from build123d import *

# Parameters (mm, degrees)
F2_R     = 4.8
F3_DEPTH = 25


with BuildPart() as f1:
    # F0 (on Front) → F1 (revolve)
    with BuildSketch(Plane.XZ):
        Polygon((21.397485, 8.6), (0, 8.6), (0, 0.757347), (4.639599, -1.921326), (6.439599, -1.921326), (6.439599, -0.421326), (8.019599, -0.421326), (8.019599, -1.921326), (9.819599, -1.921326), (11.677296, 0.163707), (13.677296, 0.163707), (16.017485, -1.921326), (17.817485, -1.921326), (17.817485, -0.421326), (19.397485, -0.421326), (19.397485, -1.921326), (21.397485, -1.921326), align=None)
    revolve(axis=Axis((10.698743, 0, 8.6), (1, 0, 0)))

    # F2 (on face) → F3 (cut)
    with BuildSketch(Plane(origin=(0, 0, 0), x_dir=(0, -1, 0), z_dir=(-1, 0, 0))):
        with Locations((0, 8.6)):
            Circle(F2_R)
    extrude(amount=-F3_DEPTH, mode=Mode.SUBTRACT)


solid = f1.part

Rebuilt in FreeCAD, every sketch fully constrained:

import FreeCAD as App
import Part
import Sketcher
from FreeCAD import Vector
Q = App.Units.Quantity

doc = App.newDocument("Part")
body = doc.addObject("PartDesign::Body", "Body")

# Sketch on XZ plane
sketch1 = doc.addObject("Sketcher::SketchObject", "Sketch")
body.addObject(sketch1)
sketch1.AttachmentSupport = (doc.XZ_Plane, [""])
sketch1.MapMode = "FlatFace"
sketch1.addGeometry(Part.LineSegment(Vector(21.4, 8.6, 0), Vector(0, 8.6, 0)), False)
sketch1.addGeometry(Part.LineSegment(Vector(0, 8.6, 0), Vector(0, 0.8, 0)), False)
sketch1.addGeometry(Part.LineSegment(Vector(0, 0.8, 0), Vector(4.6, -1.9, 0)), False)
sketch1.addGeometry(Part.LineSegment(Vector(4.6, -1.9, 0), Vector(6.4, -1.9, 0)), False)
sketch1.addGeometry(Part.LineSegment(Vector(6.4, -1.9, 0), Vector(6.4, -0.4, 0)), False)
sketch1.addGeometry(Part.LineSegment(Vector(6.4, -0.4, 0), Vector(8, -0.4, 0)), False)
sketch1.addGeometry(Part.LineSegment(Vector(8, -0.4, 0), Vector(8, -1.9, 0)), False)
sketch1.addGeometry(Part.LineSegment(Vector(8, -1.9, 0), Vector(9.8, -1.9, 0)), False)
sketch1.addGeometry(Part.LineSegment(Vector(9.8, -1.9, 0), Vector(11.7, 0.2, 0)), False)
sketch1.addGeometry(Part.LineSegment(Vector(11.7, 0.2, 0), Vector(13.7, 0.2, 0)), False)
sketch1.addGeometry(Part.LineSegment(Vector(13.7, 0.2, 0), Vector(16, -1.9, 0)), False)
sketch1.addGeometry(Part.LineSegment(Vector(16, -1.9, 0), Vector(17.8, -1.9, 0)), False)
sketch1.addGeometry(Part.LineSegment(Vector(17.8, -1.9, 0), Vector(17.8, -0.4, 0)), False)
sketch1.addGeometry(Part.LineSegment(Vector(17.8, -0.4, 0), Vector(19.4, -0.4, 0)), False)
sketch1.addGeometry(Part.LineSegment(Vector(19.4, -0.4, 0), Vector(19.4, -1.9, 0)), False)
sketch1.addGeometry(Part.LineSegment(Vector(19.4, -1.9, 0), Vector(21.4, -1.9, 0)), False)
sketch1.addGeometry(Part.LineSegment(Vector(21.4, -1.9, 0), Vector(21.4, 8.6, 0)), False)
sketch1.addGeometry(Part.LineSegment(Vector(0, 8.6, 0), Vector(21.4, 8.6, 0)), True)  # axis
sketch1.addConstraint(Sketcher.Constraint("Coincident", 0, 2, 1, 1))
sketch1.addConstraint(Sketcher.Constraint("Coincident", 1, 2, 2, 1))
sketch1.addConstraint(Sketcher.Constraint("Coincident", 2, 2, 3, 1))
sketch1.addConstraint(Sketcher.Constraint("Coincident", 3, 2, 4, 1))
sketch1.addConstraint(Sketcher.Constraint("Coincident", 4, 2, 5, 1))
sketch1.addConstraint(Sketcher.Constraint("Coincident", 5, 2, 6, 1))
sketch1.addConstraint(Sketcher.Constraint("Coincident", 6, 2, 7, 1))
sketch1.addConstraint(Sketcher.Constraint("Coincident", 7, 2, 8, 1))
sketch1.addConstraint(Sketcher.Constraint("Coincident", 8, 2, 9, 1))
sketch1.addConstraint(Sketcher.Constraint("Coincident", 9, 2, 10, 1))
sketch1.addConstraint(Sketcher.Constraint("Coincident", 10, 2, 11, 1))
sketch1.addConstraint(Sketcher.Constraint("Coincident", 11, 2, 12, 1))
sketch1.addConstraint(Sketcher.Constraint("Coincident", 12, 2, 13, 1))
sketch1.addConstraint(Sketcher.Constraint("Coincident", 13, 2, 14, 1))
sketch1.addConstraint(Sketcher.Constraint("Coincident", 14, 2, 15, 1))
sketch1.addConstraint(Sketcher.Constraint("Coincident", 15, 2, 16, 1))
sketch1.addConstraint(Sketcher.Constraint("Coincident", 16, 2, 0, 1))
sketch1.addConstraint(Sketcher.Constraint("Horizontal", 0))
sketch1.addConstraint(Sketcher.Constraint("Vertical", 1))
sketch1.addConstraint(Sketcher.Constraint("Horizontal", 3))
sketch1.addConstraint(Sketcher.Constraint("Vertical", 4))
sketch1.addConstraint(Sketcher.Constraint("Horizontal", 5))
sketch1.addConstraint(Sketcher.Constraint("Vertical", 6))
sketch1.addConstraint(Sketcher.Constraint("Horizontal", 7))
sketch1.addConstraint(Sketcher.Constraint("Horizontal", 9))
sketch1.addConstraint(Sketcher.Constraint("Horizontal", 11))
sketch1.addConstraint(Sketcher.Constraint("Vertical", 12))
sketch1.addConstraint(Sketcher.Constraint("Horizontal", 13))
sketch1.addConstraint(Sketcher.Constraint("Vertical", 14))
sketch1.addConstraint(Sketcher.Constraint("Horizontal", 15))
sketch1.addConstraint(Sketcher.Constraint("Vertical", 16))
sketch1.addConstraint(Sketcher.Constraint("Horizontal", 17))
sketch1.addConstraint(Sketcher.Constraint("Coincident", 17, 1, 0, 2))
sketch1.addConstraint(Sketcher.Constraint("PointOnObject", 0, 2, -2))
sketch1.addConstraint(Sketcher.Constraint("Perpendicular", 8, 10))
sketch1.addConstraint(Sketcher.Constraint("Horizontal", 3, 2, 6, 2))
sketch1.addConstraint(Sketcher.Constraint("Horizontal", 7, 2, 10, 2))
sketch1.addConstraint(Sketcher.Constraint("Horizontal", 5, 2, 12, 2))
sketch1.addConstraint(Sketcher.Constraint("Horizontal", 11, 2, 14, 2))
sketch1.addConstraint(Sketcher.Constraint("Vertical", 15, 2, 17, 2))
sketch1.addConstraint(Sketcher.Constraint("Equal", 3, 7))
sketch1.addConstraint(Sketcher.Constraint("Equal", 7, 11))
sketch1.addConstraint(Sketcher.Constraint("Equal", 5, 13))
sketch1.addConstraint(Sketcher.Constraint("Equal", 9, 15))
sketch1.addConstraint(Sketcher.Constraint("DistanceX", 9, 1, 9, 2, 2.0))
sketch1.addConstraint(Sketcher.Constraint("Angle", 2, Q("-29.999993 deg")))
sketch1.addConstraint(Sketcher.Constraint("DistanceX", 3, 1, 3, 2, 1.8))
sketch1.addConstraint(Sketcher.Constraint("DistanceY", 4, 1, 4, 2, 1.5))
sketch1.addConstraint(Sketcher.Constraint("Angle", 8, Q("48.299994 deg")))
sketch1.addConstraint(Sketcher.Constraint("DistanceX", 5, 1, 5, 2, 1.58))
sketch1.addConstraint(Sketcher.Constraint("DistanceY", -1, 1, 0, 2, 8.6))
sketch1.addConstraint(Sketcher.Constraint("Distance", 10, 3.134302))
sketch1.addConstraint(Sketcher.Constraint("DistanceX", -1, 1, 2, 2, 4.639599))
sketch1.addConstraint(Sketcher.Constraint("DistanceY", 1, 2, 1, 1, 7.842653))
revolution = doc.addObject("PartDesign::Revolution", "Revolution")
body.addObject(revolution)
revolution.Profile = sketch1
revolution.ReferenceAxis = (sketch1, ["Axis0"])
revolution.Angle = 360

# Sketch on YZ plane
sketch2 = doc.addObject("Sketcher::SketchObject", "Sketch001")
body.addObject(sketch2)
sketch2.AttachmentSupport = (doc.YZ_Plane, [""])
sketch2.MapMode = "FlatFace"
sketch2.addGeometry(Part.Circle(Vector(0, 8.6, 0), Vector(0, 0, 1), 4.8), False)
sketch2.addConstraint(Sketcher.Constraint("PointOnObject", 0, 3, -2))
sketch2.addConstraint(Sketcher.Constraint("Diameter", 0, 9.6))
sketch2.addConstraint(Sketcher.Constraint("DistanceY", -1, 1, 0, 3, 8.6))
pocket1 = doc.addObject("PartDesign::Pocket", "Pocket")
body.addObject(pocket1)
pocket1.Profile = sketch2
pocket1.Length = 25
pocket1.Reversed = True

doc.recompute()
